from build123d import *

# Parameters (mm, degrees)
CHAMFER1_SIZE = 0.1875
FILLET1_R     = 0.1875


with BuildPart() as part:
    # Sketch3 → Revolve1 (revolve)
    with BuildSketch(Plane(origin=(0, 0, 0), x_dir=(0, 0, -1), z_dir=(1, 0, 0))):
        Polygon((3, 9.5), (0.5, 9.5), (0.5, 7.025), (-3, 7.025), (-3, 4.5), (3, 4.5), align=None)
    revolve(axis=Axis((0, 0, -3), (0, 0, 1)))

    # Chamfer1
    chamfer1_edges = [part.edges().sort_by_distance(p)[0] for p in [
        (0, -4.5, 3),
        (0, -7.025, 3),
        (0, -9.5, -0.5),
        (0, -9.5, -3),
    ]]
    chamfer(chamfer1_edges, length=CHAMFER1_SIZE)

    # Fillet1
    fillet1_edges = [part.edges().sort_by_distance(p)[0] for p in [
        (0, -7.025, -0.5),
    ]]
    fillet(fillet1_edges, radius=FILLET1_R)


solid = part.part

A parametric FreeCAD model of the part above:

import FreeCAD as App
import Part
import Sketcher

V = App.Vector


def edges_at(feature, points):
    """Names of the edges that pass closest to the given points."""
    edges = feature.Shape.Edges
    near = lambda p: min(range(len(edges)), key=lambda i: edges[i].distToShape(Part.Vertex(*p))[0])
    return sorted({f"Edge{near(p) + 1}" for p in points})

doc = App.newDocument("Part")
params = doc.addObject("Spreadsheet::Sheet", "Params")
for row, (alias, value) in enumerate([
    ("sketch1_width", "5 mm"),
    ("sketch1_height", "6 mm"),
    ("sketch1_height2", "2.5 mm"),
    ("revolution_angle", "360 deg"),
    ("chamfer_size", "0.1875 mm"),
    ("fillet_radius", "0.1875 mm"),
], start=1):
    params.set(f"A{row}", alias)
    params.set(f"B{row}", "=" + value)
    params.setAlias(f"B{row}", alias)

body = doc.addObject("PartDesign::Body", "Body")

# Sketch on YZ plane
sketch1 = body.newObject("Sketcher::SketchObject", "Sketch")
sketch1.AttachmentSupport = (doc.getObject("YZ_Plane"), [""])
sketch1.MapMode = "FlatFace"
sketch1.addGeometry([
    Part.LineSegment(V(9.5, -3, 0), V(9.5, -0.5, 0)),  # 0
    Part.LineSegment(V(9.5, -0.5, 0), V(7, -0.5, 0)),  # 1
    Part.LineSegment(V(7, -0.5, 0), V(7, 3, 0)),  # 2
    Part.LineSegment(V(7, 3, 0), V(4.5, 3, 0)),  # 3
    Part.LineSegment(V(4.5, 3, 0), V(4.5, -3, 0)),  # 4
    Part.LineSegment(V(4.5, -3, 0), V(9.5, -3, 0)),  # 5
], False)
sketch1.addConstraint([
    Sketcher.Constraint("Coincident", 0, 2, 1, 1),
    Sketcher.Constraint("Coincident", 1, 2, 2, 1),
    Sketcher.Constraint("Coincident", 2, 2, 3, 1),
    Sketcher.Constraint("Coincident", 3, 2, 4, 1),
    Sketcher.Constraint("Coincident", 4, 2, 5, 1),
    Sketcher.Constraint("Coincident", 5, 2, 0, 1),
    Sketcher.Constraint("Vertical", 0),
    Sketcher.Constraint("Horizontal", 1),
    Sketcher.Constraint("Vertical", 2),
    Sketcher.Constraint("Horizontal", 3),
    Sketcher.Constraint("Vertical", 4),
    Sketcher.Constraint("Horizontal", 5),
    Sketcher.Constraint("DistanceX", 5, 1, 5, 2, 5.0),
    Sketcher.Constraint("DistanceY", 4, 2, 4, 1, 6.0),
    Sketcher.Constraint("DistanceY", 0, 1, 0, 2, 2.5),
    Sketcher.Constraint("DistanceY", -1, 1, 2, 2, 3.0),
    Sketcher.Constraint("DistanceX", -1, 1, 0, 2, 9.5),
    Sketcher.Constraint("DistanceX", 1, 2, 1, 1, 2.475),
])
sketch1.setExpression("Constraints[12]", "Params.sketch1_width")
sketch1.setExpression("Constraints[13]", "Params.sketch1_height")
sketch1.setExpression("Constraints[14]", "Params.sketch1_height2")
revolution = body.newObject("PartDesign::Revolution", "Revolution")
revolution.Profile = sketch1
revolution.ReferenceAxis = (sketch1, ["V_Axis"])
revolution.setExpression("Angle", "Params.revolution_angle")
doc.recompute()

chamfer = body.newObject("PartDesign::Chamfer", "Chamfer")
chamfer.Base = (revolution, edges_at(revolution, [
    (0, -4.5, 3),
    (0, -7.025, 3),
    (0, -9.5, -0.5),
    (0, -9.5, -3),
]))
chamfer.setExpression("Size", "Params.chamfer_size")
doc.recompute()

fillet = body.newObject("PartDesign::Fillet", "Fillet")
fillet.Base = (chamfer, edges_at(chamfer, [(0, -7.025, -0.5)]))
fillet.setExpression("Radius", "Params.fillet_radius")

doc.recompute()
